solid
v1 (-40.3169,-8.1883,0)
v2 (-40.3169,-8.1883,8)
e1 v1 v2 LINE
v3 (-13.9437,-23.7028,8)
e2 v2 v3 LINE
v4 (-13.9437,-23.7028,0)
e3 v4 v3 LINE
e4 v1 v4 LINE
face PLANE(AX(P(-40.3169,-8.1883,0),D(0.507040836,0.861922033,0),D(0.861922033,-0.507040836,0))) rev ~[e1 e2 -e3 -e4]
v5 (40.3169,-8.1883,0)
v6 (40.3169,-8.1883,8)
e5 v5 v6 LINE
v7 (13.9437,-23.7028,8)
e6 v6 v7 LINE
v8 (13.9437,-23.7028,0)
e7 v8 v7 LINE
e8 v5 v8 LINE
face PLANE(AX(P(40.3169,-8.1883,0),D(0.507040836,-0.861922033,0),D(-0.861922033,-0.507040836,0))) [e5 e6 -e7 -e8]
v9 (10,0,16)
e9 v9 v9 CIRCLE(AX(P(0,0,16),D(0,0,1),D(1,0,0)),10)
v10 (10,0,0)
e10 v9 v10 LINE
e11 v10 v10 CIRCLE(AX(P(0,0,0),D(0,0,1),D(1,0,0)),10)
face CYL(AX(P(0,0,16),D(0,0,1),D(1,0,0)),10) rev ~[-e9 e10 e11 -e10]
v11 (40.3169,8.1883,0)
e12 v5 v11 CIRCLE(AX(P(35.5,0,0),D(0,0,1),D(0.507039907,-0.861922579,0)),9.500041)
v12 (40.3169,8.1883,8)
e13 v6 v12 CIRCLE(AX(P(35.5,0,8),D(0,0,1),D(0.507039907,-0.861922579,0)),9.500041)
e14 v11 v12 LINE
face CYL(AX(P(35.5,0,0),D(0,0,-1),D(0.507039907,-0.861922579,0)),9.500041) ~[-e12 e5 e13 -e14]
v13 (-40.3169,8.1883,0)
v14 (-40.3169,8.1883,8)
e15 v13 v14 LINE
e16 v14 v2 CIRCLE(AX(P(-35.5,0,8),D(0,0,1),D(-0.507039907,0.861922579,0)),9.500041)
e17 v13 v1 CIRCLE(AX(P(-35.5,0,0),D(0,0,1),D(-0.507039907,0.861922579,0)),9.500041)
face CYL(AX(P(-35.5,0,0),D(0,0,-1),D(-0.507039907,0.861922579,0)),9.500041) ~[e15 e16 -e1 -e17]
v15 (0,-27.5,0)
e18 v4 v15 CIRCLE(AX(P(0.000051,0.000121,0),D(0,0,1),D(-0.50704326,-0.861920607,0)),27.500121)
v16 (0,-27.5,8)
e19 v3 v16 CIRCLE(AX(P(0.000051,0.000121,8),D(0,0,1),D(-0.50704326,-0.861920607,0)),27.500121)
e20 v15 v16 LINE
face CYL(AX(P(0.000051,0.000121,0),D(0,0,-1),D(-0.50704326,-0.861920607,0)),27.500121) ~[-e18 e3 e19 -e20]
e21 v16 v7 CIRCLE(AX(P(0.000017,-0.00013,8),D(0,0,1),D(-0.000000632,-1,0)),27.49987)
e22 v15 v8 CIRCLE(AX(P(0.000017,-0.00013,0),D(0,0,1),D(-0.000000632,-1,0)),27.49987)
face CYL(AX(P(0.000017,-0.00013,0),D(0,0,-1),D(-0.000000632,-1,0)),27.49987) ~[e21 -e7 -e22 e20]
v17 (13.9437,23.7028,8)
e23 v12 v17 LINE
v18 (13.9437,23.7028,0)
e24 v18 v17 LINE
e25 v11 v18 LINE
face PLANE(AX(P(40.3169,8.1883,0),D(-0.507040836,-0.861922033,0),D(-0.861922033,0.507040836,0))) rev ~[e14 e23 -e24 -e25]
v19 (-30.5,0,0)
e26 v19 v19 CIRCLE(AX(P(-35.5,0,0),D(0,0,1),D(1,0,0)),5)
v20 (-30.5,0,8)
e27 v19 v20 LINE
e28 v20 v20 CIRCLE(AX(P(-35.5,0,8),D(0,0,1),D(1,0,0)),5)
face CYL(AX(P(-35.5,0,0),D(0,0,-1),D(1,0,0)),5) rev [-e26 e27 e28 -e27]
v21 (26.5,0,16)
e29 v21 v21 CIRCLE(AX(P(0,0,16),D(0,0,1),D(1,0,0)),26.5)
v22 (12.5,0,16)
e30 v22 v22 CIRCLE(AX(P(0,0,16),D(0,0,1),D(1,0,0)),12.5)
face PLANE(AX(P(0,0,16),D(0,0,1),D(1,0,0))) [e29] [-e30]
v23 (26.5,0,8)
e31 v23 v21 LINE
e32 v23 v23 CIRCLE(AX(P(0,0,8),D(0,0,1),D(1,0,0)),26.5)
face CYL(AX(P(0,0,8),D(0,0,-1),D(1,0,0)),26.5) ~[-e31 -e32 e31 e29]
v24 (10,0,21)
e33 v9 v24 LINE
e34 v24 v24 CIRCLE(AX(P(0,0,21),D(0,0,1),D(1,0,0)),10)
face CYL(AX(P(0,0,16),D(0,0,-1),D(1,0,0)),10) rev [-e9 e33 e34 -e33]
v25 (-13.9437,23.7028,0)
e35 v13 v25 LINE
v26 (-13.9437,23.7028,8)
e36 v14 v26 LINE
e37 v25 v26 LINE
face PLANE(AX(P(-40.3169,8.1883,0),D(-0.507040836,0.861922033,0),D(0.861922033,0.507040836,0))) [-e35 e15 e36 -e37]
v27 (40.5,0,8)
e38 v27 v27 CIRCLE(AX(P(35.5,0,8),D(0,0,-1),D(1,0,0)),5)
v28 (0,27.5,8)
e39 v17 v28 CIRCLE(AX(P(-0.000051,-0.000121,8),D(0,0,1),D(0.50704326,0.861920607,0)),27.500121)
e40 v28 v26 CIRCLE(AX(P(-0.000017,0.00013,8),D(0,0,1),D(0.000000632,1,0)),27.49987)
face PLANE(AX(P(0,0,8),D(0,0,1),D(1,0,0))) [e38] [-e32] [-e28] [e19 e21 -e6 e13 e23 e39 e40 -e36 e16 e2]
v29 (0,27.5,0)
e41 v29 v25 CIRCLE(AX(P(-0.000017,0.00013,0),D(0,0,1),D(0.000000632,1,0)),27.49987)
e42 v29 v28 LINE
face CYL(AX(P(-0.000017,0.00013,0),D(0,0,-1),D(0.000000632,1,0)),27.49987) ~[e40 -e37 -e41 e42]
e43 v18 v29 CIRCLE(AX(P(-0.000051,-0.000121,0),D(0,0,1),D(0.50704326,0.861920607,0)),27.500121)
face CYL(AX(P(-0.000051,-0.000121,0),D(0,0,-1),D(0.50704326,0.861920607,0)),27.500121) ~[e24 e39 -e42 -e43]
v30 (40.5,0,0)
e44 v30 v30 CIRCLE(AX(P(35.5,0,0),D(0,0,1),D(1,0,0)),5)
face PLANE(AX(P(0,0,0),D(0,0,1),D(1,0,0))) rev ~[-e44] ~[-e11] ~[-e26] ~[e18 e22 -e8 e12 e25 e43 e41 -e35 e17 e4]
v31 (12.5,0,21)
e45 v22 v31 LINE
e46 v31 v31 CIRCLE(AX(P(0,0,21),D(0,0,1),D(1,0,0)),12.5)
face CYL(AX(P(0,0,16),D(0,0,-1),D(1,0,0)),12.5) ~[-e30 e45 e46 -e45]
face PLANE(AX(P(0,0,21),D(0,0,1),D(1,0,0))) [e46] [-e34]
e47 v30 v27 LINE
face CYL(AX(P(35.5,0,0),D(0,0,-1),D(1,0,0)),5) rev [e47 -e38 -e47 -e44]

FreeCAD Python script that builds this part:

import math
import FreeCAD as App
import Part
import Sketcher
Q = App.Units.Quantity

doc = App.newDocument("Part")
body = doc.addObject("PartDesign::Body", "Body")

# Sketch on XY plane
sketch1 = body.newObject("Sketcher::SketchObject", "Sketch")
sketch1.AttachmentSupport = (doc.getObject("XY_Plane"), [""])
sketch1.MapMode = "FlatFace"
sketch1.addGeometry([
    Part.LineSegment(App.Vector(-13.9437, 23.7028, 0), App.Vector(-40.3169, 8.1883, 0)),  # 0
    Part.ArcOfCircle(Part.Circle(App.Vector(-35.5, 0, 0), App.Vector(0, 0, 1), 9.500041), math.radians(120.46686), math.radians(239.53314)),  # 1
    Part.LineSegment(App.Vector(-40.3169, -8.1883, 0), App.Vector(-13.9437, -23.7028, 0)),  # 2
    Part.ArcOfCircle(Part.Circle(App.Vector(0, 0, 0), App.Vector(0, 0, 1), 27.5), math.radians(-120.467119), math.radians(-90)),  # 3
    Part.ArcOfCircle(Part.Circle(App.Vector(0, 0, 0), App.Vector(0, 0, 1), 27.499991), math.radians(-90), math.radians(-59.532881)),  # 4
    Part.LineSegment(App.Vector(13.9437, -23.7028, 0), App.Vector(40.3169, -8.1883, 0)),  # 5
    Part.ArcOfCircle(Part.Circle(App.Vector(35.5, 0, 0), App.Vector(0, 0, 1), 9.500041), math.radians(-59.53314), math.radians(59.53314)),  # 6
    Part.LineSegment(App.Vector(40.3169, 8.1883, 0), App.Vector(13.9437, 23.7028, 0)),  # 7
    Part.ArcOfCircle(Part.Circle(App.Vector(0, 0, 0), App.Vector(0, 0, 1), 27.5), math.radians(59.532881), math.radians(90)),  # 8
    Part.ArcOfCircle(Part.Circle(App.Vector(0, 0, 0), App.Vector(0, 0, 1), 27.499991), math.radians(90), math.radians(120.467119)),  # 9
    Part.Circle(App.Vector(-35.5, 0, 0), App.Vector(0, 0, 1), 5),  # 10
    Part.Circle(App.Vector(35.5, 0, 0), App.Vector(0, 0, 1), 5),  # 11
], False)
sketch1.addConstraint([
    Sketcher.Constraint("Tangent", 0, 2, 1, 1),
    Sketcher.Constraint("Tangent", 1, 2, 2, 1),
    Sketcher.Constraint("Tangent", 2, 2, 3, 1),
    Sketcher.Constraint("Tangent", 3, 2, 4, 1),
    Sketcher.Constraint("Tangent", 4, 2, 5, 1),
    Sketcher.Constraint("Tangent", 5, 2, 6, 1),
    Sketcher.Constraint("Tangent", 6, 2, 7, 1),
    Sketcher.Constraint("Tangent", 7, 2, 8, 1),
    Sketcher.Constraint("Tangent", 8, 2, 9, 1),
    Sketcher.Constraint("Tangent", 9, 2, 0, 1),
    Sketcher.Constraint("Coincident", 3, 3, -1, 1),
    Sketcher.Constraint("Coincident", 8, 3, -1, 1),
    Sketcher.Constraint("Coincident", 10, 3, 1, 3),
    Sketcher.Constraint("Coincident", 11, 3, 6, 3),
    Sketcher.Constraint("Equal", 3, 4),
    Sketcher.Constraint("Equal", 1, 6),
    Sketcher.Constraint("Equal", 4, 8),
    Sketcher.Constraint("Equal", 8, 9),
    Sketcher.Constraint("Equal", 10, 11),
    Sketcher.Constraint("Symmetric", 1, 3, 6, 3, -1, 1),
    Sketcher.Constraint("PointOnObject", 1, 3, -1),
    Sketcher.Constraint("PointOnObject", 3, 2, -2),
    Sketcher.Constraint("PointOnObject", 8, 2, -2),
    Sketcher.Constraint("Diameter", 10, Q("10 mm")),
    Sketcher.Constraint("Radius", 1, Q("9.5 mm")),
    Sketcher.Constraint("DistanceX", 1, 3, -1, 1, Q("35.5 mm")),
    Sketcher.Constraint("Radius", 3, Q("27.5 mm")),
])
pad1 = body.newObject("PartDesign::Pad", "Pad")
pad1.Profile = sketch1
pad1.Length = 8

# Sketch on XY plane
sketch2 = body.newObject("Sketcher::SketchObject", "Sketch001")
sketch2.AttachmentSupport = (doc.getObject("XY_Plane"), [""])
sketch2.MapMode = "FlatFace"
sketch2.AttachmentOffset = App.Placement(App.Vector(0, 0, 8), App.Rotation())
sketch2.addGeometry(Part.Circle(App.Vector(0, 0, 0), App.Vector(0, 0, 1), 26.5), False)
sketch2.addConstraint([
    Sketcher.Constraint("Coincident", 0, 3, -1, 1),
    Sketcher.Constraint("Diameter", 0, Q("53 mm")),
])
pad2 = body.newObject("PartDesign::Pad", "Pad001")
pad2.Profile = sketch2
pad2.Length = 8

# Sketch on XY plane
sketch3 = body.newObject("Sketcher::SketchObject", "Sketch002")
sketch3.AttachmentSupport = (doc.getObject("XY_Plane"), [""])
sketch3.MapMode = "FlatFace"
sketch3.AttachmentOffset = App.Placement(App.Vector(0, 0, 16), App.Rotation())
sketch3.addGeometry([
    Part.Circle(App.Vector(0, 0, 0), App.Vector(0, 0, 1), 12.5),
    Part.Circle(App.Vector(0, 0, 0), App.Vector(0, 0, 1), 10),
], False)
sketch3.addConstraint([
    Sketcher.Constraint("Coincident", 0, 3, -1, 1),
    Sketcher.Constraint("Coincident", 1, 3, -1, 1),
    Sketcher.Constraint("Diameter", 0, Q("25 mm")),
    Sketcher.Constraint("Diameter", 1, Q("20 mm")),
])
pad3 = body.newObject("PartDesign::Pad", "Pad002")
pad3.Profile = sketch3
pad3.Length = 5

# Sketch on XY plane
sketch4 = body.newObject("Sketcher::SketchObject", "Sketch003")
sketch4.AttachmentSupport = (doc.getObject("XY_Plane"), [""])
sketch4.MapMode = "FlatFace"
sketch4.AttachmentOffset = App.Placement(App.Vector(0, 0, 16), App.Rotation())
sketch4.addGeometry(Part.Circle(App.Vector(0, 0, 0), App.Vector(0, 0, 1), 10), False)
sketch4.addConstraint([
    Sketcher.Constraint("Coincident", 0, 3, -1, 1),
    Sketcher.Constraint("Diameter", 0, Q("20 mm")),
])
pocket1 = body.newObject("PartDesign::Pocket", "Pocket")
pocket1.Profile = sketch4
pocket1.Length = 30

doc.recompute()
